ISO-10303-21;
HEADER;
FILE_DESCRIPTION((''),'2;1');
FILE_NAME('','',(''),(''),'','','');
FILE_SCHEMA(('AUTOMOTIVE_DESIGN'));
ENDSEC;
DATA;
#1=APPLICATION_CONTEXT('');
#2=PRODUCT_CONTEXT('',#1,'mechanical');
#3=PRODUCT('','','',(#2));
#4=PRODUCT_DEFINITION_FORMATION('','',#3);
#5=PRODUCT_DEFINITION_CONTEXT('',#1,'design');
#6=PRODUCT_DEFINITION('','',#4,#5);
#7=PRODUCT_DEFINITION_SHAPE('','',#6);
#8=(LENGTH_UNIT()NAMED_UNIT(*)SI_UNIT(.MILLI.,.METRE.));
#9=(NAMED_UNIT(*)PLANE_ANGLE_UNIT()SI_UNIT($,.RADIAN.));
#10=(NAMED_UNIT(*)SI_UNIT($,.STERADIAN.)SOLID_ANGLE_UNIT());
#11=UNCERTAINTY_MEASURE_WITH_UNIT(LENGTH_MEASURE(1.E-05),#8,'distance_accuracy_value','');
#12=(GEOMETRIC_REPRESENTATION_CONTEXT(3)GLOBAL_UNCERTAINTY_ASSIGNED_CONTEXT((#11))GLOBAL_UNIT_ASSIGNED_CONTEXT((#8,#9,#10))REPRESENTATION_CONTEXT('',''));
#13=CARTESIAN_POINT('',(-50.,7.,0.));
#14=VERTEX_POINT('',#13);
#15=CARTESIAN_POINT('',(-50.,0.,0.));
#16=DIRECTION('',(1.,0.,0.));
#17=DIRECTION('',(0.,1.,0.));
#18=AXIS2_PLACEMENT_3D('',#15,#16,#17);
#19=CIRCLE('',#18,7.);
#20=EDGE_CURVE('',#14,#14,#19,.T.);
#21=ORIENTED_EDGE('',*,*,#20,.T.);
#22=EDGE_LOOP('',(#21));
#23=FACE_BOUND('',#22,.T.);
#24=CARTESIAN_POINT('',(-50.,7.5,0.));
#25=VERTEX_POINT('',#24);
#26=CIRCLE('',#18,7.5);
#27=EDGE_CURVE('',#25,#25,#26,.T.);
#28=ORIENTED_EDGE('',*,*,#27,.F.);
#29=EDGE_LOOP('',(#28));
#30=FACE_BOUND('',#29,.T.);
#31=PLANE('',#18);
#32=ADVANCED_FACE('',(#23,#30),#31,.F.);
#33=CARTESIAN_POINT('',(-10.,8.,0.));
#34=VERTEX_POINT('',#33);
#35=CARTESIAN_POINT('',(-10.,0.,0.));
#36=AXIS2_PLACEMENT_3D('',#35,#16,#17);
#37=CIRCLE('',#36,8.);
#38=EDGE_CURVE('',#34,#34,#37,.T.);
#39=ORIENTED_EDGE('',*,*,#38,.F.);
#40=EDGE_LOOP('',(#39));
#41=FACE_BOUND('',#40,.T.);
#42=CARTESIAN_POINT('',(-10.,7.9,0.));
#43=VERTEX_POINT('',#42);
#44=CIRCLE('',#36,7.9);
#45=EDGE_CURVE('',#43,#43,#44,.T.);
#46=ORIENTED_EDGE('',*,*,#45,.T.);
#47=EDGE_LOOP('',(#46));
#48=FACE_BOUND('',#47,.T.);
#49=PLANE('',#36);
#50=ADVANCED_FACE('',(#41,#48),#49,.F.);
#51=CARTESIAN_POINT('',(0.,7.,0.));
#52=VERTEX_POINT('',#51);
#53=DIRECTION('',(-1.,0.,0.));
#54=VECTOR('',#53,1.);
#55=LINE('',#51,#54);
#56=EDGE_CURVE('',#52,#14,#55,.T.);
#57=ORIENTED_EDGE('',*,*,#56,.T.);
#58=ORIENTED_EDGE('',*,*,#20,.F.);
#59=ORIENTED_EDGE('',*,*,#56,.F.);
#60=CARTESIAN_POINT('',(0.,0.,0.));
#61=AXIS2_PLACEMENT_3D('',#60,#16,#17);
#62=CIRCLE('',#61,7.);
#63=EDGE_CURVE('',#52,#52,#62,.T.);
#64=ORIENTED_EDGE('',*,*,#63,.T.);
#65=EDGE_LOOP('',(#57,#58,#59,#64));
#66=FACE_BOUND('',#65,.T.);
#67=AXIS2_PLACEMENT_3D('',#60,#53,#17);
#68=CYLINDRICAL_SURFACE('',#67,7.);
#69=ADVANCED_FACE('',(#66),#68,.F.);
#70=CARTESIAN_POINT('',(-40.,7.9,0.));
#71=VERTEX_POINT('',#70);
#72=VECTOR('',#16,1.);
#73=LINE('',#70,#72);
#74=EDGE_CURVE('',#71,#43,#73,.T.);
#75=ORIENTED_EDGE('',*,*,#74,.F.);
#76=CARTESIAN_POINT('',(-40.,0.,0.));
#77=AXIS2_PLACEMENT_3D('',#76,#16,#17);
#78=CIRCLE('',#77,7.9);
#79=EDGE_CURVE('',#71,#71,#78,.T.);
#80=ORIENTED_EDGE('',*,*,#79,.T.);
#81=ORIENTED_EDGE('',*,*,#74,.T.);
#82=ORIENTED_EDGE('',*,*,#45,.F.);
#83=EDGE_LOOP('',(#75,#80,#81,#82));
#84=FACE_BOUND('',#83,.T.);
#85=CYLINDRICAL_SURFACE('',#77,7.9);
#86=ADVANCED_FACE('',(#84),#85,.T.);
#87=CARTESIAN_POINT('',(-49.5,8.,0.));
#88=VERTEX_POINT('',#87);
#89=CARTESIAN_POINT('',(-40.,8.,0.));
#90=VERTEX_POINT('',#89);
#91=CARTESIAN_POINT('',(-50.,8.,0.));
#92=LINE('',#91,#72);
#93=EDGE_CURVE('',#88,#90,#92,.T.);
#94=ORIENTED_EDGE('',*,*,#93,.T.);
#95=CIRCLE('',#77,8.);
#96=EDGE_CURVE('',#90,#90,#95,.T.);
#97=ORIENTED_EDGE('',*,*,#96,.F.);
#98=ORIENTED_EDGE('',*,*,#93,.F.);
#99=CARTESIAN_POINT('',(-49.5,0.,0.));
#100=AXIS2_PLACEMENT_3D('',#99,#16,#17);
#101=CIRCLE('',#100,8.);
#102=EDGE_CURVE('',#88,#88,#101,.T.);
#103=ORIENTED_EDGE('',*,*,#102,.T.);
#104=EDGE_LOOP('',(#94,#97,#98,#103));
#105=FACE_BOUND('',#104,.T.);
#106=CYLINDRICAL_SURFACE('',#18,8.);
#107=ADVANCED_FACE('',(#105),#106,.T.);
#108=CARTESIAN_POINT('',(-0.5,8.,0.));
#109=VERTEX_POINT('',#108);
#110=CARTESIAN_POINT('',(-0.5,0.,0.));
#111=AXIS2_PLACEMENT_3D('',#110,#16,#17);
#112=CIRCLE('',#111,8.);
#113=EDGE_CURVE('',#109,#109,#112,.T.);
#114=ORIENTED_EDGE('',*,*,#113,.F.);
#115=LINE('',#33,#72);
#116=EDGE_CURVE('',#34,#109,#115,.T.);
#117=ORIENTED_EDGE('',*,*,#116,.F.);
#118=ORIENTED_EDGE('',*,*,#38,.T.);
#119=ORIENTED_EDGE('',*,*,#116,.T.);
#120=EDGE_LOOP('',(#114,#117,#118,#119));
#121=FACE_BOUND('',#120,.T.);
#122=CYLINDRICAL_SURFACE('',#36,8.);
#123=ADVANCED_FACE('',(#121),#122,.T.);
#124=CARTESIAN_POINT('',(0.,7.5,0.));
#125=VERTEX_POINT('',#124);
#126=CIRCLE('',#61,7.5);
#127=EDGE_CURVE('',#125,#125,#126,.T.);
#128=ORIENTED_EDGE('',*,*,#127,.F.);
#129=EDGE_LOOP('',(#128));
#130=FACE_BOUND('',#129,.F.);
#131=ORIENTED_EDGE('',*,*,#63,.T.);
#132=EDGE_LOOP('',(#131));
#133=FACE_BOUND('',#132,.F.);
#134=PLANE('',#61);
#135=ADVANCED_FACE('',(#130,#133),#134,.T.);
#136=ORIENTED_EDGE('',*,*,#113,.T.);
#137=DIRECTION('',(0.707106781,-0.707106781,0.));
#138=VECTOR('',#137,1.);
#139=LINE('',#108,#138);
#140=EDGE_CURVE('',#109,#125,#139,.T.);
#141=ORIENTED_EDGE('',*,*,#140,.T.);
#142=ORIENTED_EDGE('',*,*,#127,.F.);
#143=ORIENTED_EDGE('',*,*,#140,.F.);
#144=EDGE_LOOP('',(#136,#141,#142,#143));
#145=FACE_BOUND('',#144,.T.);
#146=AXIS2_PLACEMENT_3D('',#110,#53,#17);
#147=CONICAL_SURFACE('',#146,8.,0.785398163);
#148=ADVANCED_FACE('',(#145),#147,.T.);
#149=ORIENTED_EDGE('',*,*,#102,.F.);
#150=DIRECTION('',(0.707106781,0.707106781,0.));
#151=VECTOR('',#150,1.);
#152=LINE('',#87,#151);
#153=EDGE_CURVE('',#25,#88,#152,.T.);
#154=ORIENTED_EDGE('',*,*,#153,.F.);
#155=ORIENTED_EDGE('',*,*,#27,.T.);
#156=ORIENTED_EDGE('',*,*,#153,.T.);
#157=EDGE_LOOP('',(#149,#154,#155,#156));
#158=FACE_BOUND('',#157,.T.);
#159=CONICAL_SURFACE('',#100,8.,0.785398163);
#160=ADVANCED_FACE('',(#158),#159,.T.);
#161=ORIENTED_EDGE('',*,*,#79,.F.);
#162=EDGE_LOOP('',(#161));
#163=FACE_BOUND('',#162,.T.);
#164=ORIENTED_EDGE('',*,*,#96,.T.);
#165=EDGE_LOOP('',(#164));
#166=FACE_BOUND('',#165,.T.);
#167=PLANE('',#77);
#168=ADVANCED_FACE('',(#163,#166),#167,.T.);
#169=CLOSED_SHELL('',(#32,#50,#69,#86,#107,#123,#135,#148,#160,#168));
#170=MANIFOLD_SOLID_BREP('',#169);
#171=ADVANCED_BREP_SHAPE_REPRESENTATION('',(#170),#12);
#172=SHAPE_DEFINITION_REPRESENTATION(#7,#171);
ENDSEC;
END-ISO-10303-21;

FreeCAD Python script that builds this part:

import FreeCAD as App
import Part
import Sketcher


def edges_at(feature, points):
    """Names of the edges that pass closest to the given points."""
    edges = feature.Shape.Edges
    near = lambda p: min(range(len(edges)), key=lambda i: edges[i].distToShape(Part.Vertex(*p))[0])
    return sorted({f"Edge{near(p) + 1}" for p in points})

doc = App.newDocument("Part")
body = doc.addObject("PartDesign::Body", "Body")

sketch1 = doc.addObject("Sketcher::SketchObject", "Sketch")
body.addObject(sketch1)
sketch1.AttachmentSupport = (doc.XY_Plane, [""])
sketch1.MapMode = "FlatFace"
sketch1.addGeometry([
    Part.LineSegment(App.Vector(-50, 7, 0), App.Vector(0, 7, 0)),
    Part.LineSegment(App.Vector(0, 7, 0), App.Vector(0, 8, 0)),
    Part.LineSegment(App.Vector(0, 8, 0), App.Vector(-10, 8, 0)),
    Part.LineSegment(App.Vector(-10, 8, 0), App.Vector(-10, 7.9, 0)),
    Part.LineSegment(App.Vector(-10, 7.9, 0), App.Vector(-40, 7.9, 0)),
    Part.LineSegment(App.Vector(-40, 7.9, 0), App.Vector(-40, 8, 0)),
    Part.LineSegment(App.Vector(-40, 8, 0), App.Vector(-50, 8, 0)),
    Part.LineSegment(App.Vector(-50, 8, 0), App.Vector(-50, 7, 0)),
], False)
sketch1.addConstraint([
    Sketcher.Constraint("Coincident", 0, 2, 1, 1),
    Sketcher.Constraint("Coincident", 1, 2, 2, 1),
    Sketcher.Constraint("Coincident", 2, 2, 3, 1),
    Sketcher.Constraint("Coincident", 3, 2, 4, 1),
    Sketcher.Constraint("Coincident", 4, 2, 5, 1),
    Sketcher.Constraint("Coincident", 5, 2, 6, 1),
    Sketcher.Constraint("Coincident", 6, 2, 7, 1),
    Sketcher.Constraint("Coincident", 7, 2, 0, 1),
    Sketcher.Constraint("Horizontal", 0),
    Sketcher.Constraint("Vertical", 1),
    Sketcher.Constraint("Horizontal", 2),
    Sketcher.Constraint("Vertical", 3),
    Sketcher.Constraint("Horizontal", 4),
    Sketcher.Constraint("Vertical", 5),
    Sketcher.Constraint("Horizontal", 6),
    Sketcher.Constraint("Vertical", 7),
    Sketcher.Constraint("PointOnObject", 0, 2, -2),
    Sketcher.Constraint("Horizontal", 2, 2, 5, 2),
    Sketcher.Constraint("Equal", 2, 6),
    Sketcher.Constraint("DistanceX", 0, 1, 0, 2, 50.0),
    Sketcher.Constraint("DistanceX", 2, 2, 2, 1, 10.0),
    Sketcher.Constraint("DistanceY", 3, 2, 3, 1, 0.1),
    Sketcher.Constraint("DistanceY", 1, 1, 1, 2, 1.0),
    Sketcher.Constraint("DistanceY", -1, 1, 0, 2, 7.0),
])
revolution = doc.addObject("PartDesign::Revolution", "Revolution")
body.addObject(revolution)
revolution.Profile = sketch1
revolution.ReferenceAxis = (sketch1, ["H_Axis"])
revolution.Angle = 360
doc.recompute()

chamfer = doc.addObject("PartDesign::Chamfer", "Chamfer")
body.addObject(chamfer)
chamfer.Base = (revolution, edges_at(revolution, [(0, -8, 0), (-50, -8, 0)]))
chamfer.Size = 0.5

doc.recompute()
